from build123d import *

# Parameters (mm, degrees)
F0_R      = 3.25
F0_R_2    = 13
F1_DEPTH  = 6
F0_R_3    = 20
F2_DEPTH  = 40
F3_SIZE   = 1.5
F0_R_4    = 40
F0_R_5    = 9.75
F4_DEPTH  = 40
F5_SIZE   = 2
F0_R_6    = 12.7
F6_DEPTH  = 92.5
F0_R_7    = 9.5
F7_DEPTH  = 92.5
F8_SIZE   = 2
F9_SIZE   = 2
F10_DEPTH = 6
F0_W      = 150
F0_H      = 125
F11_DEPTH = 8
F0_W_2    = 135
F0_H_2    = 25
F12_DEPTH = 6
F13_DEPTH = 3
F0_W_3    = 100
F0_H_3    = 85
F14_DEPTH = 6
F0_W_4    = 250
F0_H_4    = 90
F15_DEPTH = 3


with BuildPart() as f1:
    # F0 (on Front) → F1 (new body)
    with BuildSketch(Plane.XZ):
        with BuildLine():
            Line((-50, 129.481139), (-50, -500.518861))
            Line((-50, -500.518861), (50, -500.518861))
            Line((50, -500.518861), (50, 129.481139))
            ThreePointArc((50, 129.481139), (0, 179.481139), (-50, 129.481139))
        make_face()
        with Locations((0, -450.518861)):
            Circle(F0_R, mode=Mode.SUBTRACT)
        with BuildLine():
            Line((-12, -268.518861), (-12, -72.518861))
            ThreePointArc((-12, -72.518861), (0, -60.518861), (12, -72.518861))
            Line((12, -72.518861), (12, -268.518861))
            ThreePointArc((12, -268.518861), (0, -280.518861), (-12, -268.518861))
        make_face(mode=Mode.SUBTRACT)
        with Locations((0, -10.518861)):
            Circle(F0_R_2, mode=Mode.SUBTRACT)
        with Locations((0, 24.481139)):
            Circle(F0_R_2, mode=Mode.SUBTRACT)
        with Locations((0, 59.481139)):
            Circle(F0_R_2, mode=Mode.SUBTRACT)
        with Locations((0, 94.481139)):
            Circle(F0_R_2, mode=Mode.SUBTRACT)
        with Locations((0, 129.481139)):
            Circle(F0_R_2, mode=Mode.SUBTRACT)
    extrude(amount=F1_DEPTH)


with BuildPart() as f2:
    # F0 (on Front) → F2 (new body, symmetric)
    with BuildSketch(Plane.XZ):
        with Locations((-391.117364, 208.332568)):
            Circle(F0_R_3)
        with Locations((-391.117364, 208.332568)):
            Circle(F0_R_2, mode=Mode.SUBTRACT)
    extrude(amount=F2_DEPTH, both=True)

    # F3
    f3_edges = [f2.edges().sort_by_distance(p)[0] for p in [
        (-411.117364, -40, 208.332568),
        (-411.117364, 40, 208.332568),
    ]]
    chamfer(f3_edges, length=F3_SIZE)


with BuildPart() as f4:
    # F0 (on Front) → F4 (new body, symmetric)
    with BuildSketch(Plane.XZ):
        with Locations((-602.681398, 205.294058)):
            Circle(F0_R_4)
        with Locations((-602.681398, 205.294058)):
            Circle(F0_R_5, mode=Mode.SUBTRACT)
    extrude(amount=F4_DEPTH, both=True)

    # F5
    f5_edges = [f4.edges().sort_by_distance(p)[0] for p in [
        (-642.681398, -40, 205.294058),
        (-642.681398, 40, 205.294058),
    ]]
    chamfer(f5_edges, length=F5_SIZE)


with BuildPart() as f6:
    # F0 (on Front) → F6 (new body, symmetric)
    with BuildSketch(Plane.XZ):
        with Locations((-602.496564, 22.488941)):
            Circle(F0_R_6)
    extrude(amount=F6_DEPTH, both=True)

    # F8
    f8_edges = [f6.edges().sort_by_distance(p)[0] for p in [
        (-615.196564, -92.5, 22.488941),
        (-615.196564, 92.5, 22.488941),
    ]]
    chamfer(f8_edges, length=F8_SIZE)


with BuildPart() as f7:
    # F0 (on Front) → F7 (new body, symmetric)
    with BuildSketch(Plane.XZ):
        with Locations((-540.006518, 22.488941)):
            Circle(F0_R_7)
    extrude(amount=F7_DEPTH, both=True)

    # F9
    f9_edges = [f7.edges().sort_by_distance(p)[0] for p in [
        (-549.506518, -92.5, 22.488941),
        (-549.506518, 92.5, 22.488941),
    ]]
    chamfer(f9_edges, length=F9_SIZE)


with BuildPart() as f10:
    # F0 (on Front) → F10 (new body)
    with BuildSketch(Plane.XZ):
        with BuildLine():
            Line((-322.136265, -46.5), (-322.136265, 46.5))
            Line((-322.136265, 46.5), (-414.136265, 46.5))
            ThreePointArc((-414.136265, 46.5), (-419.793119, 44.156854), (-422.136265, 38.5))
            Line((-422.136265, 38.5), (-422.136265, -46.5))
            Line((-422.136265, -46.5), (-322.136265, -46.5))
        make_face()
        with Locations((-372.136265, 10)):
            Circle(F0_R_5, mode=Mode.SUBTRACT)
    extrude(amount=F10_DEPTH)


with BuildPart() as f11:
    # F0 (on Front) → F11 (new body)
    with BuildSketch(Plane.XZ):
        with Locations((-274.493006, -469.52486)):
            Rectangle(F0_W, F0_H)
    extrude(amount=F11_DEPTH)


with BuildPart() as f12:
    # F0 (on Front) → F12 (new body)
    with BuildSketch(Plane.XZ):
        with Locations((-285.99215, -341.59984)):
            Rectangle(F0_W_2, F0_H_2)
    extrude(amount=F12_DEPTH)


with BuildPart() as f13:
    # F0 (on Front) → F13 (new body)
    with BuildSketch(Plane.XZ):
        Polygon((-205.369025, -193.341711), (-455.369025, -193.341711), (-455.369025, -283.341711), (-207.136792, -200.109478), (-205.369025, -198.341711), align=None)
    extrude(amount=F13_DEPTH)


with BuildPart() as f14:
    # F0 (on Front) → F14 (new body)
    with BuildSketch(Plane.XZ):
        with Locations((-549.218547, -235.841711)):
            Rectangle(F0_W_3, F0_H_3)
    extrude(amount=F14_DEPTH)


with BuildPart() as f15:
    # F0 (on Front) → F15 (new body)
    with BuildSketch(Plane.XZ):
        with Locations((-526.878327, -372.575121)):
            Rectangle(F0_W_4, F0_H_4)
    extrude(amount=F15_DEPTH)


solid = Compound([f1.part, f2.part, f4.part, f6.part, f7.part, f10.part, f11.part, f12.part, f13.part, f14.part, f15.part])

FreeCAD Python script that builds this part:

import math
import FreeCAD as App
import Part
import Sketcher
Q = App.Units.Quantity


def edges_at(feature, points):
    """Names of the edges that pass closest to the given points."""
    edges = feature.Shape.Edges
    near = lambda p: min(range(len(edges)), key=lambda i: edges[i].distToShape(Part.Vertex(*p))[0])
    return sorted({f"Edge{near(p) + 1}" for p in points})


def add_polygon(sketch, points):
    """Adds a closed chain of lines whose ends are joined by coincident constraints."""
    first, n = sketch.GeometryCount, len(points)
    for a, b in zip(points, points[1:] + points[:1]):
        sketch.addGeometry(Part.LineSegment(App.Vector(*a, 0), App.Vector(*b, 0)), False)
    for i in range(n):
        sketch.addConstraint(Sketcher.Constraint("Coincident", first + i, 2, first + (i + 1) % n, 1))

doc = App.newDocument("Part")
body = doc.addObject("PartDesign::Body", "Body")

sketch1 = body.newObject("Sketcher::SketchObject", "Sketch")
sketch1.AttachmentSupport = (doc.getObject("XZ_Plane"), [""])
sketch1.MapMode = "FlatFace"
sketch1.addGeometry(Part.LineSegment(App.Vector(-50, 129.5, 0), App.Vector(-50, -500.5, 0)), False)
sketch1.addGeometry(Part.LineSegment(App.Vector(-50, -500.5, 0), App.Vector(50, -500.5, 0)), False)
sketch1.addGeometry(Part.LineSegment(App.Vector(50, -500.5, 0), App.Vector(50, 129.5, 0)), False)
sketch1.addGeometry(Part.ArcOfCircle(Part.Circle(App.Vector(0, 129.5, 0), App.Vector(0, 0, 1), 50), math.radians(0), math.radians(180)), False)
sketch1.addGeometry(Part.Circle(App.Vector(0, -450.5, 0), App.Vector(0, 0, 1), 3.2), False)
sketch1.addGeometry(Part.ArcOfCircle(Part.Circle(App.Vector(0, -268.5, 0), App.Vector(0, 0, 1), 12), math.radians(180), math.radians(360)), False)
sketch1.addGeometry(Part.LineSegment(App.Vector(-12, -268.5, 0), App.Vector(-12, -72.5, 0)), False)
sketch1.addGeometry(Part.ArcOfCircle(Part.Circle(App.Vector(0, -72.5, 0), App.Vector(0, 0, 1), 12), math.radians(0), math.radians(180)), False)
sketch1.addGeometry(Part.LineSegment(App.Vector(12, -72.5, 0), App.Vector(12, -268.5, 0)), False)
sketch1.addGeometry(Part.Circle(App.Vector(0, -10.5, 0), App.Vector(0, 0, 1), 13), False)
sketch1.addGeometry(Part.Circle(App.Vector(0, 24.5, 0), App.Vector(0, 0, 1), 13), False)
sketch1.addGeometry(Part.Circle(App.Vector(0, 59.5, 0), App.Vector(0, 0, 1), 13), False)
sketch1.addGeometry(Part.Circle(App.Vector(0, 94.5, 0), App.Vector(0, 0, 1), 13), False)
sketch1.addGeometry(Part.Circle(App.Vector(0, 129.5, 0), App.Vector(0, 0, 1), 13), False)
sketch1.addConstraint(Sketcher.Constraint("Coincident", 0, 2, 1, 1))
sketch1.addConstraint(Sketcher.Constraint("Coincident", 1, 2, 2, 1))
sketch1.addConstraint(Sketcher.Constraint("Tangent", 2, 2, 3, 1))
sketch1.addConstraint(Sketcher.Constraint("Tangent", 3, 2, 0, 1))
sketch1.addConstraint(Sketcher.Constraint("Tangent", 5, 1, 6, 1))
sketch1.addConstraint(Sketcher.Constraint("Tangent", 6, 2, 7, 2))
sketch1.addConstraint(Sketcher.Constraint("Tangent", 7, 1, 8, 1))
sketch1.addConstraint(Sketcher.Constraint("Tangent", 8, 2, 5, 2))
sketch1.addConstraint(Sketcher.Constraint("Vertical", 0))
sketch1.addConstraint(Sketcher.Constraint("Horizontal", 1))
sketch1.addConstraint(Sketcher.Constraint("Vertical", 2))
sketch1.addConstraint(Sketcher.Constraint("Vertical", 6))
sketch1.addConstraint(Sketcher.Constraint("Vertical", 8))
sketch1.addConstraint(Sketcher.Constraint("Coincident", 13, 3, 3, 3))
sketch1.addConstraint(Sketcher.Constraint("Equal", 9, 10))
sketch1.addConstraint(Sketcher.Constraint("Equal", 10, 11))
sketch1.addConstraint(Sketcher.Constraint("Equal", 11, 12))
sketch1.addConstraint(Sketcher.Constraint("Equal", 12, 13))
sketch1.addConstraint(Sketcher.Constraint("PointOnObject", 3, 3, -2))
sketch1.addConstraint(Sketcher.Constraint("PointOnObject", 4, 3, -2))
sketch1.addConstraint(Sketcher.Constraint("PointOnObject", 5, 3, -2))
sketch1.addConstraint(Sketcher.Constraint("PointOnObject", 9, 3, -2))
sketch1.addConstraint(Sketcher.Constraint("PointOnObject", 10, 3, -2))
sketch1.addConstraint(Sketcher.Constraint("PointOnObject", 11, 3, -2))
sketch1.addConstraint(Sketcher.Constraint("PointOnObject", 12, 3, -2))
sketch1.addConstraint(Sketcher.Constraint("Diameter", 9, 26.0))
sketch1.addConstraint(Sketcher.Constraint("Radius", 3, 50.0))
sketch1.addConstraint(Sketcher.Constraint("Radius", 5, 12.0))
sketch1.addConstraint(Sketcher.Constraint("Diameter", 4, 6.5))
sketch1.addConstraint(Sketcher.Constraint("DistanceY", 0, 2, 0, 1, 630.0))
sketch1.addConstraint(Sketcher.Constraint("DistanceY", 6, 1, 6, 2, 196.0))
sketch1.addConstraint(Sketcher.Constraint("DistanceY", 4, 3, 3, 3, 580.0))
sketch1.addConstraint(Sketcher.Constraint("DistanceY", 4, 3, 5, 3, 182.0))
sketch1.addConstraint(Sketcher.Constraint("DistanceY", 7, 3, 9, 3, 62.0))
sketch1.addConstraint(Sketcher.Constraint("DistanceY", 9, 3, 10, 3, 35.0))
sketch1.addConstraint(Sketcher.Constraint("DistanceY", 10, 3, 11, 3, 35.0))
sketch1.addConstraint(Sketcher.Constraint("DistanceY", 11, 3, 12, 3, 35.0))
sketch1.addConstraint(Sketcher.Constraint("DistanceY", -1, 1, 3, 3, 129.481139))
pad1 = body.newObject("PartDesign::Pad", "Pad")
pad1.Profile = sketch1
pad1.Length = 6
body2 = doc.addObject("PartDesign::Body", "Body001")

sketch2 = body2.newObject("Sketcher::SketchObject", "Sketch001")
sketch2.AttachmentSupport = (doc.getObject("XZ_Plane001"), [""])
sketch2.MapMode = "FlatFace"
sketch2.addGeometry(Part.Circle(App.Vector(-391, 208, 0), App.Vector(0, 0, 1), 20), False)
sketch2.addGeometry(Part.Circle(App.Vector(-391, 208, 0), App.Vector(0, 0, 1), 13), False)
sketch2.addConstraint(Sketcher.Constraint("Coincident", 1, 3, 0, 3))
sketch2.addConstraint(Sketcher.Constraint("Diameter", 0, 40.0))
sketch2.addConstraint(Sketcher.Constraint("Diameter", 1, 26.0))
sketch2.addConstraint(Sketcher.Constraint("DistanceY", -1, 1, 0, 3, 208.332568))
sketch2.addConstraint(Sketcher.Constraint("DistanceX", 0, 3, -1, 1, 391.117364))
pad2 = body2.newObject("PartDesign::Pad", "Pad001")
pad2.Profile = sketch2
pad2.Length = 80
pad2.Midplane = True
doc.recompute()

chamfer = body2.newObject("PartDesign::Chamfer", "Chamfer")
chamfer.Base = (pad2, edges_at(pad2, [(-411.117, -40, 208.333), (-411.117, 40, 208.333)]))
chamfer.Size = 1.5
body3 = doc.addObject("PartDesign::Body", "Body002")

sketch3 = body3.newObject("Sketcher::SketchObject", "Sketch002")
sketch3.AttachmentSupport = (doc.getObject("XZ_Plane002"), [""])
sketch3.MapMode = "FlatFace"
sketch3.addGeometry(Part.Circle(App.Vector(-603, 205, 0), App.Vector(0, 0, 1), 40), False)
sketch3.addGeometry(Part.Circle(App.Vector(-603, 205, 0), App.Vector(0, 0, 1), 10), False)
sketch3.addConstraint(Sketcher.Constraint("Coincident", 1, 3, 0, 3))
sketch3.addConstraint(Sketcher.Constraint("Diameter", 0, 80.0))
sketch3.addConstraint(Sketcher.Constraint("Diameter", 1, 19.5))
sketch3.addConstraint(Sketcher.Constraint("DistanceY", -1, 1, 0, 3, 205.294058))
sketch3.addConstraint(Sketcher.Constraint("DistanceX", 0, 3, -1, 1, 602.681398))
pad3 = body3.newObject("PartDesign::Pad", "Pad002")
pad3.Profile = sketch3
pad3.Length = 80
pad3.Midplane = True
doc.recompute()

chamfer2 = body3.newObject("PartDesign::Chamfer", "Chamfer001")
chamfer2.Base = (pad3, edges_at(pad3, [(-642.681, -40, 205.294), (-642.681, 40, 205.294)]))
chamfer2.Size = 2
body4 = doc.addObject("PartDesign::Body", "Body003")

sketch4 = body4.newObject("Sketcher::SketchObject", "Sketch003")
sketch4.AttachmentSupport = (doc.getObject("XZ_Plane003"), [""])
sketch4.MapMode = "FlatFace"
sketch4.addGeometry(Part.Circle(App.Vector(-602, 22, 0), App.Vector(0, 0, 1), 13), False)
sketch4.addConstraint(Sketcher.Constraint("Diameter", 0, 25.4))
sketch4.addConstraint(Sketcher.Constraint("DistanceY", -1, 1, 0, 3, 22.488941))
sketch4.addConstraint(Sketcher.Constraint("DistanceX", 0, 3, -1, 1, 602.496564))
pad4 = body4.newObject("PartDesign::Pad", "Pad003")
pad4.Profile = sketch4
pad4.Length = 185
pad4.Midplane = True
doc.recompute()

chamfer3 = body4.newObject("PartDesign::Chamfer", "Chamfer002")
chamfer3.Base = (pad4, edges_at(pad4, [(-615.197, -92.5, 22.489), (-615.197, 92.5, 22.489)]))
chamfer3.Size = 2
body5 = doc.addObject("PartDesign::Body", "Body004")

sketch5 = body5.newObject("Sketcher::SketchObject", "Sketch004")
sketch5.AttachmentSupport = (doc.getObject("XZ_Plane004"), [""])
sketch5.MapMode = "FlatFace"
sketch5.addGeometry(Part.Circle(App.Vector(-540, 22, 0), App.Vector(0, 0, 1), 10), False)
sketch5.addConstraint(Sketcher.Constraint("Diameter", 0, 19.0))
sketch5.addConstraint(Sketcher.Constraint("DistanceX", 0, 3, -1, 1, 540.006518))
sketch5.addConstraint(Sketcher.Constraint("DistanceY", -1, 1, 0, 3, 22.488941))
pad5 = body5.newObject("PartDesign::Pad", "Pad004")
pad5.Profile = sketch5
pad5.Length = 185
pad5.Midplane = True
doc.recompute()

chamfer4 = body5.newObject("PartDesign::Chamfer", "Chamfer003")
chamfer4.Base = (pad5, edges_at(pad5, [(-549.507, -92.5, 22.489), (-549.507, 92.5, 22.489)]))
chamfer4.Size = 2
body6 = doc.addObject("PartDesign::Body", "Body005")

sketch6 = body6.newObject("Sketcher::SketchObject", "Sketch005")
sketch6.AttachmentSupport = (doc.getObject("XZ_Plane005"), [""])
sketch6.MapMode = "FlatFace"
sketch6.addGeometry(Part.LineSegment(App.Vector(-322, -46, 0), App.Vector(-322, 46, 0)), False)
sketch6.addGeometry(Part.LineSegment(App.Vector(-322, 46, 0), App.Vector(-414, 46, 0)), False)
sketch6.addGeometry(Part.ArcOfCircle(Part.Circle(App.Vector(-414, 38, 0), App.Vector(0, 0, 1), 8), math.radians(90), math.radians(180)), False)
sketch6.addGeometry(Part.LineSegment(App.Vector(-422, 38, 0), App.Vector(-422, -46, 0)), False)
sketch6.addGeometry(Part.LineSegment(App.Vector(-422, -46, 0), App.Vector(-322, -46, 0)), False)
sketch6.addGeometry(Part.Circle(App.Vector(-372, 10, 0), App.Vector(0, 0, 1), 10), False)
sketch6.addConstraint(Sketcher.Constraint("Coincident", 0, 2, 1, 1))
sketch6.addConstraint(Sketcher.Constraint("Tangent", 1, 2, 2, 1))
sketch6.addConstraint(Sketcher.Constraint("Tangent", 2, 2, 3, 1))
sketch6.addConstraint(Sketcher.Constraint("Coincident", 3, 2, 4, 1))
sketch6.addConstraint(Sketcher.Constraint("Coincident", 4, 2, 0, 1))
sketch6.addConstraint(Sketcher.Constraint("Vertical", 0))
sketch6.addConstraint(Sketcher.Constraint("Horizontal", 1))
sketch6.addConstraint(Sketcher.Constraint("Vertical", 3))
sketch6.addConstraint(Sketcher.Constraint("Horizontal", 4))
sketch6.addConstraint(Sketcher.Constraint("Radius", 2, 8.000001))
sketch6.addConstraint(Sketcher.Constraint("Diameter", 5, 19.5))
sketch6.addConstraint(Sketcher.Constraint("DistanceX", 1, 2, 1, 1, 92.0))
sketch6.addConstraint(Sketcher.Constraint("DistanceY", 0, 1, 0, 2, 93.0))
sketch6.addConstraint(Sketcher.Constraint("DistanceY", -1, 1, 5, 3, 10.0))
sketch6.addConstraint(Sketcher.Constraint("DistanceX", 2, 3, 5, 3, 41.999999))
sketch6.addConstraint(Sketcher.Constraint("DistanceY", -1, 1, 2, 3, 38.499999))
sketch6.addConstraint(Sketcher.Constraint("DistanceX", 2, 3, -1, 1, 414.136264))
pad6 = body6.newObject("PartDesign::Pad", "Pad005")
pad6.Profile = sketch6
pad6.Length = 6
body7 = doc.addObject("PartDesign::Body", "Body006")

sketch7 = body7.newObject("Sketcher::SketchObject", "Sketch006")
sketch7.AttachmentSupport = (doc.getObject("XZ_Plane006"), [""])
sketch7.MapMode = "FlatFace"
add_polygon(sketch7, [(-349, -407), (-349, -532), (-199, -532), (-199, -407)])
sketch7.addConstraint(Sketcher.Constraint("Vertical", 0))
sketch7.addConstraint(Sketcher.Constraint("Horizontal", 1))
sketch7.addConstraint(Sketcher.Constraint("Vertical", 2))
sketch7.addConstraint(Sketcher.Constraint("Horizontal", 3))
sketch7.addConstraint(Sketcher.Constraint("DistanceX", 1, 1, 1, 2, 150.0))
sketch7.addConstraint(Sketcher.Constraint("DistanceY", 0, 2, 0, 1, 125.0))
sketch7.addConstraint(Sketcher.Constraint("DistanceY", 0, 2, -1, 1, 532.02486))
sketch7.addConstraint(Sketcher.Constraint("DistanceX", 0, 2, -1, 1, 349.493006))
pad7 = body7.newObject("PartDesign::Pad", "Pad006")
pad7.Profile = sketch7
pad7.Length = 8
body8 = doc.addObject("PartDesign::Body", "Body007")

sketch8 = body8.newObject("Sketcher::SketchObject", "Sketch007")
sketch8.AttachmentSupport = (doc.getObject("XZ_Plane007"), [""])
sketch8.MapMode = "FlatFace"
add_polygon(sketch8, [(-353, -329), (-353, -354), (-218, -354), (-218, -329)])
sketch8.addConstraint(Sketcher.Constraint("Vertical", 0))
sketch8.addConstraint(Sketcher.Constraint("Horizontal", 1))
sketch8.addConstraint(Sketcher.Constraint("Vertical", 2))
sketch8.addConstraint(Sketcher.Constraint("Horizontal", 3))
sketch8.addConstraint(Sketcher.Constraint("DistanceX", 1, 1, 1, 2, 135.0))
sketch8.addConstraint(Sketcher.Constraint("DistanceY", 0, 2, 0, 1, 25.0))
sketch8.addConstraint(Sketcher.Constraint("DistanceX", 0, 2, -1, 1, 353.49215))
sketch8.addConstraint(Sketcher.Constraint("DistanceY", 0, 2, -1, 1, 354.09984))
pad8 = body8.newObject("PartDesign::Pad", "Pad007")
pad8.Profile = sketch8
pad8.Length = 6
body9 = doc.addObject("PartDesign::Body", "Body008")

sketch9 = body9.newObject("Sketcher::SketchObject", "Sketch008")
sketch9.AttachmentSupport = (doc.getObject("XZ_Plane008"), [""])
sketch9.MapMode = "FlatFace"
add_polygon(sketch9, [(-205.4, -193.3), (-455.4, -193.3), (-455.4, -283.3), (-207.1, -200.1), (-205.4, -198.3)])
sketch9.addConstraint(Sketcher.Constraint("Horizontal", 0))
sketch9.addConstraint(Sketcher.Constraint("Vertical", 1))
sketch9.addConstraint(Sketcher.Constraint("Vertical", 4))
sketch9.addConstraint(Sketcher.Constraint("DistanceX", 0, 2, 0, 1, 250.0))
sketch9.addConstraint(Sketcher.Constraint("DistanceY", 1, 2, 1, 1, 90.0))
sketch9.addConstraint(Sketcher.Constraint("DistanceY", 4, 1, 4, 2, 5.0))
sketch9.addConstraint(Sketcher.Constraint("Angle", 3, Q("45 deg")))
sketch9.addConstraint(Sketcher.Constraint("Distance", 3, 2.5))
sketch9.addConstraint(Sketcher.Constraint("DistanceY", 0, 2, -1, 1, 193.341711))
sketch9.addConstraint(Sketcher.Constraint("DistanceX", 0, 2, -1, 1, 455.369025))
pad9 = body9.newObject("PartDesign::Pad", "Pad008")
pad9.Profile = sketch9
pad9.Length = 3
body10 = doc.addObject("PartDesign::Body", "Body009")

sketch10 = body10.newObject("Sketcher::SketchObject", "Sketch009")
sketch10.AttachmentSupport = (doc.getObject("XZ_Plane009"), [""])
sketch10.MapMode = "FlatFace"
add_polygon(sketch10, [(-599, -193), (-599, -278), (-499, -278), (-499, -193)])
sketch10.addConstraint(Sketcher.Constraint("Vertical", 0))
sketch10.addConstraint(Sketcher.Constraint("Horizontal", 1))
sketch10.addConstraint(Sketcher.Constraint("Vertical", 2))
sketch10.addConstraint(Sketcher.Constraint("Horizontal", 3))
sketch10.addConstraint(Sketcher.Constraint("DistanceX", 1, 1, 1, 2, 100.0))
sketch10.addConstraint(Sketcher.Constraint("DistanceY", 0, 2, 0, 1, 85.0))
sketch10.addConstraint(Sketcher.Constraint("DistanceY", 0, 2, -1, 1, 278.341711))
sketch10.addConstraint(Sketcher.Constraint("DistanceX", 0, 2, -1, 1, 599.218547))
pad10 = body10.newObject("PartDesign::Pad", "Pad009")
pad10.Profile = sketch10
pad10.Length = 6
body11 = doc.addObject("PartDesign::Body", "Body010")

sketch11 = body11.newObject("Sketcher::SketchObject", "Sketch010")
sketch11.AttachmentSupport = (doc.getObject("XZ_Plane010"), [""])
sketch11.MapMode = "FlatFace"
add_polygon(sketch11, [(-652, -328), (-652, -418), (-402, -418), (-402, -328)])
sketch11.addConstraint(Sketcher.Constraint("Vertical", 0))
sketch11.addConstraint(Sketcher.Constraint("Horizontal", 1))
sketch11.addConstraint(Sketcher.Constraint("Vertical", 2))
sketch11.addConstraint(Sketcher.Constraint("Horizontal", 3))
sketch11.addConstraint(Sketcher.Constraint("DistanceX", 1, 1, 1, 2, 250.0))
sketch11.addConstraint(Sketcher.Constraint("DistanceY", 0, 2, 0, 1, 90.0))
sketch11.addConstraint(Sketcher.Constraint("DistanceY", 0, 2, -1, 1, 417.575121))
sketch11.addConstraint(Sketcher.Constraint("DistanceX", 0, 2, -1, 1, 651.878327))
pad11 = body11.newObject("PartDesign::Pad", "Pad010")
pad11.Profile = sketch11
pad11.Length = 3

doc.recompute()
